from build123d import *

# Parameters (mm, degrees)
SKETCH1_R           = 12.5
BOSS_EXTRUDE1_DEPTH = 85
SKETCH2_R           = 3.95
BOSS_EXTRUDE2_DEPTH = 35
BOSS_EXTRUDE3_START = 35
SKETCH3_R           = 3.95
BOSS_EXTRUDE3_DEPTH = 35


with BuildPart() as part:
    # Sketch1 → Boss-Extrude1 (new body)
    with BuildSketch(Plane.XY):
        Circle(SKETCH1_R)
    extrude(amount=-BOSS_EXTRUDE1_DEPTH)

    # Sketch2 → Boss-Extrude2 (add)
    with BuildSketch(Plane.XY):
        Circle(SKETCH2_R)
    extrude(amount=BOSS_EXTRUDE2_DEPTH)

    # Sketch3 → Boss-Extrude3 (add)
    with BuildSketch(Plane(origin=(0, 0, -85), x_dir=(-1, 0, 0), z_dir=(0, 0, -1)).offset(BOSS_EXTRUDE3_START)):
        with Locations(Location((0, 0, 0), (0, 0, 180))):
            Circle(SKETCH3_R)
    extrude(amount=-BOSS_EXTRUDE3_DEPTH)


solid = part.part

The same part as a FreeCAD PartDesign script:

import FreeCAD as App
import Part
import Sketcher
from FreeCAD import Vector
Q = App.Units.Quantity

doc = App.newDocument("Part")
body = doc.addObject("PartDesign::Body", "Body")

# Sketch on XY plane
sketch1 = body.newObject("Sketcher::SketchObject", "Sketch")
sketch1.AttachmentSupport = (doc.getObject("XY_Plane"), [""])
sketch1.MapMode = "FlatFace"
sketch1.addGeometry(Part.Circle(Vector(0, 0, 0), Vector(0, 0, 1), 12), False)
sketch1.addConstraint(Sketcher.Constraint("Coincident", 0, 3, -1, 1))
sketch1.addConstraint(Sketcher.Constraint("Diameter", 0, Q("25 mm")))
pad1 = body.newObject("PartDesign::Pad", "Pad")
pad1.Profile = sketch1
pad1.Length = 85
pad1.Reversed = True

# Sketch on XY plane
sketch2 = body.newObject("Sketcher::SketchObject", "Sketch001")
sketch2.AttachmentSupport = (doc.getObject("XY_Plane"), [""])
sketch2.MapMode = "FlatFace"
sketch2.addGeometry(Part.Circle(Vector(0, 0, 0), Vector(0, 0, 1), 4), False)
sketch2.addConstraint(Sketcher.Constraint("Coincident", 0, 3, -1, 1))
sketch2.addConstraint(Sketcher.Constraint("Diameter", 0, Q("7.9 mm")))
pad2 = body.newObject("PartDesign::Pad", "Pad001")
pad2.Profile = sketch2
pad2.Length = 35

# Sketch on XY plane
sketch3 = body.newObject("Sketcher::SketchObject", "Sketch002")
sketch3.AttachmentSupport = (doc.getObject("XY_Plane"), [""])
sketch3.MapMode = "FlatFace"
sketch3.AttachmentOffset = App.Placement(Vector(0, 0, -120), App.Rotation())
sketch3.addGeometry(Part.Circle(Vector(0, 0, 0), Vector(0, 0, 1), 4), False)
sketch3.addConstraint(Sketcher.Constraint("Coincident", 0, 3, -1, 1))
sketch3.addConstraint(Sketcher.Constraint("Diameter", 0, Q("7.9 mm")))
pad3 = body.newObject("PartDesign::Pad", "Pad002")
pad3.Profile = sketch3
pad3.Length = 35

doc.recompute()
